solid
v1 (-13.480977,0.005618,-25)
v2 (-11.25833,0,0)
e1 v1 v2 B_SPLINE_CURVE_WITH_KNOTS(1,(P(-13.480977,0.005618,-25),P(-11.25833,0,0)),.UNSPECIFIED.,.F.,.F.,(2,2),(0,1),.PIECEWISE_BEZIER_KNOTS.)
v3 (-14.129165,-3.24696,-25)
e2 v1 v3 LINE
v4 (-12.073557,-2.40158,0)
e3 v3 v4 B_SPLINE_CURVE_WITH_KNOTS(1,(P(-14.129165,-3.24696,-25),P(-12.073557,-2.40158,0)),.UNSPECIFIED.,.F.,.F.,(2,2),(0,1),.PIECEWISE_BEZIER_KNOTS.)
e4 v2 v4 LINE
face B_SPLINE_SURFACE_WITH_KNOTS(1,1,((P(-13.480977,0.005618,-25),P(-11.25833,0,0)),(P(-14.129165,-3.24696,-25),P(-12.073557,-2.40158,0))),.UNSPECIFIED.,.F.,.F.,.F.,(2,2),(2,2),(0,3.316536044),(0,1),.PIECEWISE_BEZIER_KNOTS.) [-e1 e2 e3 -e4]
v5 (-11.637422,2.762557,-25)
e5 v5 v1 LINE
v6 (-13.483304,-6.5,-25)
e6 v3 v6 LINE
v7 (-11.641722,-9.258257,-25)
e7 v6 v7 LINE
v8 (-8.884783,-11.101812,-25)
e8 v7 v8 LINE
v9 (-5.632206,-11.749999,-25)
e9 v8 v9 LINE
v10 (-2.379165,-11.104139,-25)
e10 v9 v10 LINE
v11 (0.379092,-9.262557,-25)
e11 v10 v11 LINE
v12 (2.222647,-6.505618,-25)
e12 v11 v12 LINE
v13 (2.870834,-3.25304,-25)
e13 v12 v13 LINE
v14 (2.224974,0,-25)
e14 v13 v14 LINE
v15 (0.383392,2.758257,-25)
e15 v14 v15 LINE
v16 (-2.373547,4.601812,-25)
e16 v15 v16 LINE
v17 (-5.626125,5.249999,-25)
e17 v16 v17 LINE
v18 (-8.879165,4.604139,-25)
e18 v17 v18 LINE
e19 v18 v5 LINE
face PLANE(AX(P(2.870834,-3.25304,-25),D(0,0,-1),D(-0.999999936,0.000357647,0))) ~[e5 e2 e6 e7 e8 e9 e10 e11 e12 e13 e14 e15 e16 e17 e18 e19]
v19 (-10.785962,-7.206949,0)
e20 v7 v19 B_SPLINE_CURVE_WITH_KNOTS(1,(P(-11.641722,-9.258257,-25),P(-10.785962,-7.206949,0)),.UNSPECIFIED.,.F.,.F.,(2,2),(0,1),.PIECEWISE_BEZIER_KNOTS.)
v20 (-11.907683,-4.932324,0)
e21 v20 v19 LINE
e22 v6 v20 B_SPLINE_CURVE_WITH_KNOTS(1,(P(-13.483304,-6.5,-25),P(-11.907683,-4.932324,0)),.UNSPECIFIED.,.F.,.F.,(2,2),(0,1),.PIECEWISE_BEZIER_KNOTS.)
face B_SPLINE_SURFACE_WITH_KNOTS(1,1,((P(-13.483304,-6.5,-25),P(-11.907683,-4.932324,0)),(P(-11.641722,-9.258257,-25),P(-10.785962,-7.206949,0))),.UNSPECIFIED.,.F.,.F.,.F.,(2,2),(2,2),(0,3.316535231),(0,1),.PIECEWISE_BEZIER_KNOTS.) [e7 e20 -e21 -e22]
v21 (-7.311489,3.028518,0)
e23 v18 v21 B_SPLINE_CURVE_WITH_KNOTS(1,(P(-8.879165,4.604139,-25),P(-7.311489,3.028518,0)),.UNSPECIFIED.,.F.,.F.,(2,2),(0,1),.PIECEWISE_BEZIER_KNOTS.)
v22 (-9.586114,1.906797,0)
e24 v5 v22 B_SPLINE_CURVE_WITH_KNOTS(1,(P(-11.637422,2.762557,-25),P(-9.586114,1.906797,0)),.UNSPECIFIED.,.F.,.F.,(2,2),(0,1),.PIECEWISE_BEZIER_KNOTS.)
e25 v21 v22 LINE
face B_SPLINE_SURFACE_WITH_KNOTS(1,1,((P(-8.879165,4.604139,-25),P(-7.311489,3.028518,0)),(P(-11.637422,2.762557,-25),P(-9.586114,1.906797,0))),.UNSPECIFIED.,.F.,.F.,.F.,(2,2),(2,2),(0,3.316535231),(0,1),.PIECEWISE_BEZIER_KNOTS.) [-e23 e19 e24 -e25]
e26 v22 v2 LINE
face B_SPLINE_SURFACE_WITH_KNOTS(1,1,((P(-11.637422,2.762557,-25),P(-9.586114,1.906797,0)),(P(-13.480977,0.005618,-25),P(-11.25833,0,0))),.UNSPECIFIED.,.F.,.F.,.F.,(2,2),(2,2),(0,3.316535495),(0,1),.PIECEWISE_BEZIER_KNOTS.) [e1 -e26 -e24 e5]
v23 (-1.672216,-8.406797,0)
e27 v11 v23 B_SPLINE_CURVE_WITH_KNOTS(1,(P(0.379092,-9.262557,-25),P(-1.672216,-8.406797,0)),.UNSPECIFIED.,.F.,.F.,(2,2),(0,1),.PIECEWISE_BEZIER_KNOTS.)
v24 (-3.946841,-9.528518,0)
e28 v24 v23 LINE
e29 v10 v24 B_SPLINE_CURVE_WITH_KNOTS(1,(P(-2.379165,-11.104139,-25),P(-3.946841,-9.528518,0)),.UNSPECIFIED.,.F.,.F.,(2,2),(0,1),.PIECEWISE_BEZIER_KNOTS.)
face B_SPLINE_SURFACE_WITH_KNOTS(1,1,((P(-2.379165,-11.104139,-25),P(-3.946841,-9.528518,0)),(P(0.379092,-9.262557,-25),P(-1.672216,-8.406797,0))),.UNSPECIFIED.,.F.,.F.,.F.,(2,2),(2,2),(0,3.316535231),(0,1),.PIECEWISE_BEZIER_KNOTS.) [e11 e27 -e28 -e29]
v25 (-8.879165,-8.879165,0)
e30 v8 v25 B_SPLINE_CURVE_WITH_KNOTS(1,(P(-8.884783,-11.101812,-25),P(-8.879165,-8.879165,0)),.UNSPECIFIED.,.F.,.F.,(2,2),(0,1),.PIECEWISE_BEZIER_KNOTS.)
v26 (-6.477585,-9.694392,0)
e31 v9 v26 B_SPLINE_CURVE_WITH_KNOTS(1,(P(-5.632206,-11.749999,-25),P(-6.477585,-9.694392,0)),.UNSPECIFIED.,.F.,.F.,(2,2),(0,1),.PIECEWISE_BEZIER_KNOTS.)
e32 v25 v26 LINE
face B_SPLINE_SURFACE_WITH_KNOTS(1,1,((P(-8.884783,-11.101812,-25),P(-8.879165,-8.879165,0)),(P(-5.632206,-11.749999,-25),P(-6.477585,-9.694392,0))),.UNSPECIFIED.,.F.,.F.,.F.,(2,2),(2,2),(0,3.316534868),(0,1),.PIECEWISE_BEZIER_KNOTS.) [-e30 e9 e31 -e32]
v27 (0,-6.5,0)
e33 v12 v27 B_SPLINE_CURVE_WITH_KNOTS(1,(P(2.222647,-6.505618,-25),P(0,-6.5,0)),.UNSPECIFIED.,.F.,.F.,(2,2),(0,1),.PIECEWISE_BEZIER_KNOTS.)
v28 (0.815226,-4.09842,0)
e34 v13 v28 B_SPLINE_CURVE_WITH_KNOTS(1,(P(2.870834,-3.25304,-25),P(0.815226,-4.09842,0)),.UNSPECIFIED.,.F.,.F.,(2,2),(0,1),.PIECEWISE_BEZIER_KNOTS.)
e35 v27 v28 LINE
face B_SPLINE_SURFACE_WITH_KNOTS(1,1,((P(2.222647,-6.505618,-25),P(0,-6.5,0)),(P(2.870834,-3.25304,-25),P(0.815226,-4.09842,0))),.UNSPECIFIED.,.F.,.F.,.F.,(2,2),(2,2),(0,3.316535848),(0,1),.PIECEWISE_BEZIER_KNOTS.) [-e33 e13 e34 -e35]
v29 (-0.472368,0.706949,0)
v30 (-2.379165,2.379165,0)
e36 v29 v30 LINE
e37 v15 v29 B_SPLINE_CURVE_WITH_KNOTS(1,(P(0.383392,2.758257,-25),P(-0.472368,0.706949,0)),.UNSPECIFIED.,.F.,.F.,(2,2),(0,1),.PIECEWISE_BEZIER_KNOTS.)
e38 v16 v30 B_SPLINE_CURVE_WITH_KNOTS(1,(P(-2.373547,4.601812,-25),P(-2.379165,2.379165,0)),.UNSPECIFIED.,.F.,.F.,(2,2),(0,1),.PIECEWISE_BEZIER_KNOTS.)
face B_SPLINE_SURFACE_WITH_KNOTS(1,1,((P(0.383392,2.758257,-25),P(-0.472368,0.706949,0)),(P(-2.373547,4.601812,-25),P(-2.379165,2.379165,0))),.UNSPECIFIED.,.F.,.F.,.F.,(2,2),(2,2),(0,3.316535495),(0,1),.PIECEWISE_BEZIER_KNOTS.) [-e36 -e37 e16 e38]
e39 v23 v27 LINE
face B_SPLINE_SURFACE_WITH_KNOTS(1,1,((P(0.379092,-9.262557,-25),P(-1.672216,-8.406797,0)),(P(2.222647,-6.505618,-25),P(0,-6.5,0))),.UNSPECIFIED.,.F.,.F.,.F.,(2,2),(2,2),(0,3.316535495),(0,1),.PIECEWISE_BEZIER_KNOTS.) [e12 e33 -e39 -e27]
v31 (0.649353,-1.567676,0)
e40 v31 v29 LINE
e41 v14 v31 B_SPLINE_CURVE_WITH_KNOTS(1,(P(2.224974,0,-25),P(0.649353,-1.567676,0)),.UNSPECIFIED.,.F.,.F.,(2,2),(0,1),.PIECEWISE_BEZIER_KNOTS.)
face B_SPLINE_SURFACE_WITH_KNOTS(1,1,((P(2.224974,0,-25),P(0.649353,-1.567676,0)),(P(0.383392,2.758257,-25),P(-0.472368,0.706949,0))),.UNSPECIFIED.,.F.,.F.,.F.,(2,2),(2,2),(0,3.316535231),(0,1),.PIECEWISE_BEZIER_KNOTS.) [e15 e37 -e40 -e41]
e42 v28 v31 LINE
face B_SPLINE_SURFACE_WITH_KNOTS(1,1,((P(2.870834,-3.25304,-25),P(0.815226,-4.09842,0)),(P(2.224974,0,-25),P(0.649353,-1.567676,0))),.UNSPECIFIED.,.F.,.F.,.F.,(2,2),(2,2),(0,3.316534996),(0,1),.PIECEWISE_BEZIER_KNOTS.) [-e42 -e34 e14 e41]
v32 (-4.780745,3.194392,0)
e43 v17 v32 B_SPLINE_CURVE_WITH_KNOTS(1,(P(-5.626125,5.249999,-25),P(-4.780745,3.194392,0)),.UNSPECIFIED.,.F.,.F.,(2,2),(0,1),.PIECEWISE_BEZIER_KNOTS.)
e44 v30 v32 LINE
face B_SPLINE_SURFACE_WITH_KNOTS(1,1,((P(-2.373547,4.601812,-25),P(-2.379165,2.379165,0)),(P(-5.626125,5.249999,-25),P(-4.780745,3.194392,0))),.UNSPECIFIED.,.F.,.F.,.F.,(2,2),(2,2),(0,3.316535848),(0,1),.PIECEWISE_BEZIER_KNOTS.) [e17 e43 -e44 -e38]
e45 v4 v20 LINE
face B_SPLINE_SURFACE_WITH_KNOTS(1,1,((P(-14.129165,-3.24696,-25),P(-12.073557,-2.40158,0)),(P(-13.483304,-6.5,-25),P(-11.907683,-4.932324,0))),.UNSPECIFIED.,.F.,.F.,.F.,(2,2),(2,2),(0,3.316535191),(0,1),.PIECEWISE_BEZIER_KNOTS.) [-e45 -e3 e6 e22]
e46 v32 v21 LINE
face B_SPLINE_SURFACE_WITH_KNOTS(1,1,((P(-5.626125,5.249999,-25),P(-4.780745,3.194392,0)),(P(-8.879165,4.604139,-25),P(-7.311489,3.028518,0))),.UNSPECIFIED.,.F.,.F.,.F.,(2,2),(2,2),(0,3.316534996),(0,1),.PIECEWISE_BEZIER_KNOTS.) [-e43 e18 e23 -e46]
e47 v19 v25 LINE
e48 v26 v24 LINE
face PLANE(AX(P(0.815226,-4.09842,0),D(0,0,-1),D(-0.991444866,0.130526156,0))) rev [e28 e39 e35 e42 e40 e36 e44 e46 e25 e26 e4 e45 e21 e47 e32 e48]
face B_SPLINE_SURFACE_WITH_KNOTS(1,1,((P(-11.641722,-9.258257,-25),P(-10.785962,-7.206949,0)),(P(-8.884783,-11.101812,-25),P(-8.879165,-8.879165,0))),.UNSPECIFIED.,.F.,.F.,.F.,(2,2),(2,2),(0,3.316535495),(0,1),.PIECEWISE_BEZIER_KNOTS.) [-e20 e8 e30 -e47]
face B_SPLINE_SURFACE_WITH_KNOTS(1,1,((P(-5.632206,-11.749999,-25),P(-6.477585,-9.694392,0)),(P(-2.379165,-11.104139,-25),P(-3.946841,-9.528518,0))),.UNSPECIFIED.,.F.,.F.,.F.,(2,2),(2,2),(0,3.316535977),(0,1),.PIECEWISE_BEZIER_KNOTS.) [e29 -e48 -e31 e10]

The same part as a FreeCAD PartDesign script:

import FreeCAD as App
import Part
import Sketcher
from FreeCAD import Vector
Q = App.Units.Quantity


def add_polygon(sketch, points):
    """Adds a closed chain of lines whose ends are joined by coincident constraints."""
    first, n = sketch.GeometryCount, len(points)
    for a, b in zip(points, points[1:] + points[:1]):
        sketch.addGeometry(Part.LineSegment(App.Vector(*a, 0), App.Vector(*b, 0)), False)
    for i in range(n):
        sketch.addConstraint(Sketcher.Constraint("Coincident", first + i, 2, first + (i + 1) % n, 1))

doc = App.newDocument("Part")
body = doc.addObject("PartDesign::Body", "Body")

# Sketch on XY plane
sketch1 = doc.addObject("Sketcher::SketchObject", "Sketch")
body.addObject(sketch1)
sketch1.AttachmentSupport = (doc.XY_Plane, [""])
sketch1.MapMode = "FlatFace"
sketch1.AttachmentOffset = App.Placement(Vector(0, 0, -25), App.Rotation())
add_polygon(sketch1, [(2.9, -3.3), (2.2, 0), (0.4, 2.8), (-2.4, 4.6), (-5.6, 5.2), (-8.9, 4.6), (-11.6, 2.8), (-13.5, 0), (-14.1, -3.2), (-13.5, -6.5), (-11.6, -9.3), (-8.9, -11.1), (-5.6, -11.7), (-2.4, -11.1), (0.4, -9.3), (2.2, -6.5)])  # lines 0-15
sketch1.addConstraint([
    Sketcher.Constraint("PointOnObject", 0, 2, -1),
    Sketcher.Constraint("Perpendicular", 0, 4),
    Sketcher.Constraint("Perpendicular", 1, 5),
    Sketcher.Constraint("Perpendicular", 2, 6),
    Sketcher.Constraint("Perpendicular", 3, 7),
    Sketcher.Constraint("Perpendicular", 4, 8),
    Sketcher.Constraint("Perpendicular", 5, 9),
    Sketcher.Constraint("Perpendicular", 6, 10),
    Sketcher.Constraint("Perpendicular", 7, 11),
    Sketcher.Constraint("Perpendicular", 8, 12),
    Sketcher.Constraint("Perpendicular", 9, 13),
    Sketcher.Constraint("Perpendicular", 10, 14),
    Sketcher.Constraint("Perpendicular", 11, 15),
    Sketcher.Constraint("Equal", 0, 1),
    Sketcher.Constraint("Equal", 1, 2),
    Sketcher.Constraint("Equal", 2, 3),
    Sketcher.Constraint("Equal", 3, 4),
    Sketcher.Constraint("Equal", 4, 5),
    Sketcher.Constraint("Equal", 5, 6),
    Sketcher.Constraint("Equal", 6, 7),
    Sketcher.Constraint("Equal", 7, 8),
    Sketcher.Constraint("Equal", 8, 9),
    Sketcher.Constraint("Equal", 9, 10),
    Sketcher.Constraint("Equal", 10, 11),
    Sketcher.Constraint("Equal", 11, 12),
    Sketcher.Constraint("Equal", 12, 13),
    Sketcher.Constraint("DistanceY", 8, 2, -1, 1, Q("6.5 mm")),
    Sketcher.Constraint("DistanceY", -1, 1, 3, 2, Q("5.249999 mm")),
    Sketcher.Constraint("DistanceX", 3, 2, 0, 2, Q("7.851099 mm")),
    Sketcher.Constraint("DistanceY", 1, 2, 5, 2, Q("0.0043 mm")),
    Sketcher.Constraint("DistanceY", -1, 1, 2, 2, Q("4.601812 mm")),
    Sketcher.Constraint("DistanceX", -1, 1, 0, 2, Q("2.224974 mm")),
])

# Sketch on XY plane
sketch2 = doc.addObject("Sketcher::SketchObject", "Sketch001")
body.addObject(sketch2)
sketch2.AttachmentSupport = (doc.XY_Plane, [""])
sketch2.MapMode = "FlatFace"
add_polygon(sketch2, [(-1.7, -8.4), (0, -6.5), (0.8, -4.1), (0.6, -1.6), (-0.5, 0.7), (-2.4, 2.4), (-4.8, 3.2), (-7.3, 3), (-9.6, 1.9), (-11.3, 0), (-12.1, -2.4), (-11.9, -4.9), (-10.8, -7.2), (-8.9, -8.9), (-6.5, -9.7), (-3.9, -9.5)])  # lines 0-15
sketch2.addConstraint([
    Sketcher.Constraint("PointOnObject", 0, 2, -2),
    Sketcher.Constraint("PointOnObject", 8, 2, -1),
    Sketcher.Constraint("Perpendicular", 0, 4),
    Sketcher.Constraint("Perpendicular", 1, 5),
    Sketcher.Constraint("Perpendicular", 2, 6),
    Sketcher.Constraint("Perpendicular", 3, 7),
    Sketcher.Constraint("Perpendicular", 4, 8),
    Sketcher.Constraint("Perpendicular", 5, 9),
    Sketcher.Constraint("Perpendicular", 6, 10),
    Sketcher.Constraint("Perpendicular", 7, 11),
    Sketcher.Constraint("Perpendicular", 8, 12),
    Sketcher.Constraint("Perpendicular", 9, 13),
    Sketcher.Constraint("Perpendicular", 10, 14),
    Sketcher.Constraint("Perpendicular", 11, 15),
    Sketcher.Constraint("Equal", 0, 1),
    Sketcher.Constraint("Equal", 1, 2),
    Sketcher.Constraint("Equal", 2, 3),
    Sketcher.Constraint("Equal", 3, 4),
    Sketcher.Constraint("Equal", 4, 5),
    Sketcher.Constraint("Equal", 5, 6),
    Sketcher.Constraint("Equal", 6, 7),
    Sketcher.Constraint("Equal", 7, 8),
    Sketcher.Constraint("Equal", 8, 9),
    Sketcher.Constraint("Equal", 9, 10),
    Sketcher.Constraint("Equal", 10, 11),
    Sketcher.Constraint("Equal", 11, 12),
    Sketcher.Constraint("Equal", 12, 13),
    Sketcher.Constraint("DistanceY", 0, 2, -1, 1, Q("6.5 mm")),
    Sketcher.Constraint("Angle", 0, Q("48.750002 deg")),
    Sketcher.Constraint("Angle", 1, Q("71.250012 deg")),
    Sketcher.Constraint("Angle", 2, Q("93.749984 deg")),
    Sketcher.Constraint("Angle", 3, Q("116.250002 deg")),
])

additiveloft = doc.addObject("PartDesign::AdditiveLoft", "AdditiveLoft")
body.addObject(additiveloft)
additiveloft.Profile = sketch1
additiveloft.Sections = [sketch2]

doc.recompute()
